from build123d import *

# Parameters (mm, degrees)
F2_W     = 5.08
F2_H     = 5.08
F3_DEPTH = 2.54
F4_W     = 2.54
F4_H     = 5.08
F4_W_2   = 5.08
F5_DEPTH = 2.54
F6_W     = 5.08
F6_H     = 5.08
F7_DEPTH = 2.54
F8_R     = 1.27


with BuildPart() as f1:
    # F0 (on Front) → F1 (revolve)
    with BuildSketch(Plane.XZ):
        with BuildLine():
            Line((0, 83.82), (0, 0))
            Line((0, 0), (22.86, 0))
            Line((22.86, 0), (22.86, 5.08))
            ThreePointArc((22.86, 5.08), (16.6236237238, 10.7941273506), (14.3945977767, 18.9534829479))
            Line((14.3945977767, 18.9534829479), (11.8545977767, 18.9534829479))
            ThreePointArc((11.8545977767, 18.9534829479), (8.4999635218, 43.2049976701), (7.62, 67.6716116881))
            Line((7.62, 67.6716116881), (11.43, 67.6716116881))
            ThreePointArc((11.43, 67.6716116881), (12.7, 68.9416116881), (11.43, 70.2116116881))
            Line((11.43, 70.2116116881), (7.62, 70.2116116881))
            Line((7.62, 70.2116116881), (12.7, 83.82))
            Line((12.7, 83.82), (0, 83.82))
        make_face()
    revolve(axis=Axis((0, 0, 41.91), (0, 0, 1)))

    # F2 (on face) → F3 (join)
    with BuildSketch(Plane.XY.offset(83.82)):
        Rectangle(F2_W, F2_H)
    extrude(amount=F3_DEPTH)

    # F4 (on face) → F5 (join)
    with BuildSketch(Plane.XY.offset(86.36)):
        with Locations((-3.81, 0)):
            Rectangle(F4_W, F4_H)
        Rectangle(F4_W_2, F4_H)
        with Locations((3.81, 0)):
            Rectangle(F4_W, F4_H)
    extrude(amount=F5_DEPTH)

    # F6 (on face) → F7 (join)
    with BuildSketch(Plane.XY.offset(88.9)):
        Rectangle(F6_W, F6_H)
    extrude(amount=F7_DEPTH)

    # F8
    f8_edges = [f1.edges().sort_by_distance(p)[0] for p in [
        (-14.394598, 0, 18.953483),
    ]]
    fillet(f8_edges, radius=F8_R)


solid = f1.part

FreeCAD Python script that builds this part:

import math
import FreeCAD as App
import Part
import Sketcher

V = App.Vector
Q = App.Units.Quantity


def edges_at(feature, points):
    """Names of the edges that pass closest to the given points."""
    edges = feature.Shape.Edges
    near = lambda p: min(range(len(edges)), key=lambda i: edges[i].distToShape(Part.Vertex(*p))[0])
    return sorted({f"Edge{near(p) + 1}" for p in points})


def add_polygon(sketch, points):
    """Adds a closed chain of lines whose ends are joined by coincident constraints."""
    first, n = sketch.GeometryCount, len(points)
    for a, b in zip(points, points[1:] + points[:1]):
        sketch.addGeometry(Part.LineSegment(App.Vector(*a, 0), App.Vector(*b, 0)), False)
    for i in range(n):
        sketch.addConstraint(Sketcher.Constraint("Coincident", first + i, 2, first + (i + 1) % n, 1))

doc = App.newDocument("Part")
body = doc.addObject("PartDesign::Body", "Body")

# Sketch on XZ plane
sketch1 = doc.addObject("Sketcher::SketchObject", "Sketch")
body.addObject(sketch1)
sketch1.AttachmentSupport = (doc.XZ_Plane, [""])
sketch1.MapMode = "FlatFace"
sketch1.addGeometry([
    Part.LineSegment(V(0, 83.82, 0), V(0, 0, 0)),  # 0
    Part.LineSegment(V(0, 0, 0), V(22.86, 0, 0)),  # 1
    Part.LineSegment(V(22.86, 0, 0), V(22.86, 5.08, 0)),  # 2
    Part.ArcOfCircle(Part.Circle(V(29.632992, 18.732259, 0), V(0, 0, 1), 15.24), math.radians(179.168265), math.radians(243.613632)),  # 3
    Part.LineSegment(V(14.394598, 18.953483, 0), V(11.854598, 18.953483, 0)),  # 4
    Part.ArcOfCircle(Part.Circle(V(248.893567, 64.100099, 0), V(0, 0, 1), 241.3), math.radians(179.151927), math.radians(190.783443)),  # 5
    Part.LineSegment(V(7.62, 67.671612, 0), V(11.43, 67.671612, 0)),  # 6
    Part.ArcOfCircle(Part.Circle(V(11.43, 68.941612, 0), V(0, 0, 1), 1.27), math.radians(-90), math.radians(90)),  # 7
    Part.LineSegment(V(11.43, 70.211612, 0), V(7.62, 70.211612, 0)),  # 8
    Part.LineSegment(V(7.62, 70.211612, 0), V(12.7, 83.82, 0)),  # 9
    Part.LineSegment(V(12.7, 83.82, 0), V(0, 83.82, 0)),  # 10
], False)
sketch1.addConstraint([
    Sketcher.Constraint("Coincident", 0, 2, 1, 1),
    Sketcher.Constraint("Coincident", 1, 2, 2, 1),
    Sketcher.Constraint("Coincident", 2, 2, 3, 2),
    Sketcher.Constraint("Coincident", 3, 1, 4, 1),
    Sketcher.Constraint("Coincident", 4, 2, 5, 2),
    Sketcher.Constraint("Coincident", 5, 1, 6, 1),
    Sketcher.Constraint("Tangent", 6, 2, 7, 1),
    Sketcher.Constraint("Tangent", 7, 2, 8, 1),
    Sketcher.Constraint("Coincident", 8, 2, 9, 1),
    Sketcher.Constraint("Coincident", 9, 2, 10, 1),
    Sketcher.Constraint("Coincident", 10, 2, 0, 1),
    Sketcher.Constraint("Vertical", 0),
    Sketcher.Constraint("Horizontal", 1),
    Sketcher.Constraint("Vertical", 2),
    Sketcher.Constraint("Horizontal", 4),
    Sketcher.Constraint("Horizontal", 6),
    Sketcher.Constraint("Horizontal", 8),
    Sketcher.Constraint("Horizontal", 10),
    Sketcher.Constraint("Coincident", 0, 2, -1, 1),
    Sketcher.Constraint("Vertical", 5, 1, 8, 2),
    Sketcher.Constraint("Radius", 3, Q("0.6 in")),
    Sketcher.Constraint("Radius", 5, Q("9.5 in")),
    Sketcher.Constraint("Radius", 7, Q("0.05 in")),
    Sketcher.Constraint("DistanceX", 1, 1, 1, 2, Q("0.9 in")),
    Sketcher.Constraint("DistanceX", 4, 2, 4, 1, Q("0.1 in")),
    Sketcher.Constraint("DistanceX", 10, 2, 10, 1, Q("0.5 in")),
    Sketcher.Constraint("DistanceY", 0, 2, 0, 1, Q("3.3 in")),
    Sketcher.Constraint("DistanceY", 2, 1, 2, 2, Q("0.2 in")),
    Sketcher.Constraint("DistanceX", 6, 1, 6, 2, Q("0.15 in")),
    Sketcher.Constraint("DistanceX", -1, 1, 5, 1, Q("0.3 in")),
    Sketcher.Constraint("DistanceY", -1, 1, 3, 1, Q("0.7462001 in")),
    Sketcher.Constraint("DistanceY", -1, 1, 5, 3, 64.100099),
    Sketcher.Constraint("DistanceY", -1, 1, 3, 3, 18.732259),
])
revolution = doc.addObject("PartDesign::Revolution", "Revolution")
body.addObject(revolution)
revolution.Profile = sketch1
revolution.ReferenceAxis = (sketch1, ["V_Axis"])
revolution.Angle = 360

# Sketch on XY plane
sketch2 = doc.addObject("Sketcher::SketchObject", "Sketch001")
body.addObject(sketch2)
sketch2.AttachmentSupport = (doc.XY_Plane, [""])
sketch2.MapMode = "FlatFace"
sketch2.AttachmentOffset = App.Placement(V(0, 0, 3.3 * 25.4), App.Rotation())
add_polygon(sketch2, [(-2.54, 2.54), (-2.54, -2.54), (2.54, -2.54), (2.54, 2.54)])  # lines 0-3
sketch2.addConstraint([
    Sketcher.Constraint("Vertical", 0),
    Sketcher.Constraint("Horizontal", 1),
    Sketcher.Constraint("Vertical", 2),
    Sketcher.Constraint("Horizontal", 3),
    Sketcher.Constraint("Symmetric", 0, 2, 2, 2, -1, 1),
    Sketcher.Constraint("Equal", 3, 0),
    Sketcher.Constraint("DistanceX", 1, 1, 1, 2, Q("0.2 in")),
])
pad1 = doc.addObject("PartDesign::Pad", "Pad")
body.addObject(pad1)
pad1.Profile = sketch2
pad1.Length = Q("0.1 in")

# Sketch on XY plane
sketch3 = doc.addObject("Sketcher::SketchObject", "Sketch002")
body.addObject(sketch3)
sketch3.AttachmentSupport = (doc.XY_Plane, [""])
sketch3.MapMode = "FlatFace"
sketch3.AttachmentOffset = App.Placement(V(0, 0, 3.4 * 25.4), App.Rotation())
add_polygon(sketch3, [(-5.08, 2.54), (-5.08, -2.54), (5.08, -2.54), (5.08, 2.54)])  # lines 0-3
sketch3.addConstraint([
    Sketcher.Constraint("Vertical", 0),
    Sketcher.Constraint("Horizontal", 1),
    Sketcher.Constraint("Vertical", 2),
    Sketcher.Constraint("Horizontal", 3),
    Sketcher.Constraint("Symmetric", 0, 2, 2, 2, -1, 1),
    Sketcher.Constraint("DistanceX", 1, 1, 1, 2, Q("0.4 in")),
    Sketcher.Constraint("DistanceY", 0, 2, 0, 1, Q("0.2 in")),
])
pad2 = doc.addObject("PartDesign::Pad", "Pad001")
body.addObject(pad2)
pad2.Profile = sketch3
pad2.Length = Q("0.1 in")

# Sketch on XY plane
sketch4 = doc.addObject("Sketcher::SketchObject", "Sketch003")
body.addObject(sketch4)
sketch4.AttachmentSupport = (doc.XY_Plane, [""])
sketch4.MapMode = "FlatFace"
sketch4.AttachmentOffset = App.Placement(V(0, 0, 3.5 * 25.4), App.Rotation())
add_polygon(sketch4, [(-2.54, 2.54), (-2.54, -2.54), (2.54, -2.54), (2.54, 2.54)])  # lines 0-3
sketch4.addConstraint([
    Sketcher.Constraint("Vertical", 0),
    Sketcher.Constraint("Horizontal", 1),
    Sketcher.Constraint("Vertical", 2),
    Sketcher.Constraint("Horizontal", 3),
    Sketcher.Constraint("Symmetric", 0, 2, 2, 2, -1, 1),
    Sketcher.Constraint("Equal", 3, 0),
    Sketcher.Constraint("DistanceX", 1, 1, 1, 2, Q("0.2 in")),
])
pad3 = doc.addObject("PartDesign::Pad", "Pad002")
body.addObject(pad3)
pad3.Profile = sketch4
pad3.Length = Q("0.1 in")
doc.recompute()

fillet = doc.addObject("PartDesign::Fillet", "Fillet")
body.addObject(fillet)
fillet.Base = (pad3, edges_at(pad3, [(-14.395, 0, 18.953)]))
fillet.Radius = Q("0.05 in")

doc.recompute()
